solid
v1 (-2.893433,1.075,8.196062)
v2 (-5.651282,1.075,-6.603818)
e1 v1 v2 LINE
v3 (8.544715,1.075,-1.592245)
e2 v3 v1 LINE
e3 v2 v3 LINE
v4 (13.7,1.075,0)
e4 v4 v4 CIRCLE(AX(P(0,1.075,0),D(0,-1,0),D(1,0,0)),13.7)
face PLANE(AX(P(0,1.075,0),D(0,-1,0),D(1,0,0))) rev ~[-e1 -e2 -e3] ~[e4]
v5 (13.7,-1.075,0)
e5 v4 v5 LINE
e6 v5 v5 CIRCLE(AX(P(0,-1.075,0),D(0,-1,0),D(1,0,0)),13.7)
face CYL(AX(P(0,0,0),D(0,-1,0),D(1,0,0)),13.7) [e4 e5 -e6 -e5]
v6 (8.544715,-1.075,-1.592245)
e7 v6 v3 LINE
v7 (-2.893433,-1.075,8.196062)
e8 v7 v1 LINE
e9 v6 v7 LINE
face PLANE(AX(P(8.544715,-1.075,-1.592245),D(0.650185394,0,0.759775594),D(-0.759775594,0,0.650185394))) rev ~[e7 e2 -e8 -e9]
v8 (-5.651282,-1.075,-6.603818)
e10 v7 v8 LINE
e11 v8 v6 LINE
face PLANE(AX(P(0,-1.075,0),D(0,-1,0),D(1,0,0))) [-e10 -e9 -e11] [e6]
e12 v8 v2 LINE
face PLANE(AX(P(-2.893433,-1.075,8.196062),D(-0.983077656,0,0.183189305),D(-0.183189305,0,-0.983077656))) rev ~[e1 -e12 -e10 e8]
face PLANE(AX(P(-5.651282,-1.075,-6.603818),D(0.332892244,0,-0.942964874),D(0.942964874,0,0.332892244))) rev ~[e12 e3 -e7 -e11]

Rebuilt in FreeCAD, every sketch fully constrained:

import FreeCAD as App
import Part
import Sketcher

V = App.Vector
Q = App.Units.Quantity


def add_polygon(sketch, points):
    """Adds a closed chain of lines whose ends are joined by coincident constraints."""
    first, n = sketch.GeometryCount, len(points)
    for a, b in zip(points, points[1:] + points[:1]):
        sketch.addGeometry(Part.LineSegment(App.Vector(*a, 0), App.Vector(*b, 0)), False)
    for i in range(n):
        sketch.addConstraint(Sketcher.Constraint("Coincident", first + i, 2, first + (i + 1) % n, 1))

doc = App.newDocument("Part")
body = doc.addObject("PartDesign::Body", "Body")

# Sketch on XZ plane
sketch1 = body.newObject("Sketcher::SketchObject", "Sketch")
sketch1.AttachmentSupport = (doc.getObject("XZ_Plane"), [""])
sketch1.MapMode = "FlatFace"
sketch1.addGeometry(Part.Circle(V(0, 0, 0), V(0, 0, 1), 14), False)
sketch1.addConstraint([
    Sketcher.Constraint("Coincident", 0, 3, -1, 1),
    Sketcher.Constraint("Diameter", 0, Q("27.4 mm")),
])
pad1 = body.newObject("PartDesign::Pad", "Pad")
pad1.Profile = sketch1
pad1.Length = 2.15
pad1.Midplane = True

# Sketch on XZ plane
sketch2 = body.newObject("Sketcher::SketchObject", "Sketch001")
sketch2.AttachmentSupport = (doc.getObject("XZ_Plane"), [""])
sketch2.MapMode = "FlatFace"
sketch2.AttachmentOffset = App.Placement(V(0, 0, 1.075), App.Rotation())
add_polygon(sketch2, [(-6, -7), (9, -2), (-3, 8)])  # lines 0-2
sketch2.addConstraint([
    Sketcher.Constraint("Equal", 0, 1),
    Sketcher.Constraint("Equal", 1, 2),
    Sketcher.Constraint("Distance", 0, Q("15.05464 mm")),
    Sketcher.Constraint("DistanceY", 2, 2, -1, 1, Q("6.603818 mm")),
    Sketcher.Constraint("DistanceX", 2, 2, 1, 2, Q("2.757849 mm")),
    Sketcher.Constraint("DistanceX", -1, 1, 0, 2, Q("8.544715 mm")),
])
pocket1 = body.newObject("PartDesign::Pocket", "Pocket")
pocket1.Profile = sketch2
pocket1.Type = "ThroughAll"

doc.recompute()
